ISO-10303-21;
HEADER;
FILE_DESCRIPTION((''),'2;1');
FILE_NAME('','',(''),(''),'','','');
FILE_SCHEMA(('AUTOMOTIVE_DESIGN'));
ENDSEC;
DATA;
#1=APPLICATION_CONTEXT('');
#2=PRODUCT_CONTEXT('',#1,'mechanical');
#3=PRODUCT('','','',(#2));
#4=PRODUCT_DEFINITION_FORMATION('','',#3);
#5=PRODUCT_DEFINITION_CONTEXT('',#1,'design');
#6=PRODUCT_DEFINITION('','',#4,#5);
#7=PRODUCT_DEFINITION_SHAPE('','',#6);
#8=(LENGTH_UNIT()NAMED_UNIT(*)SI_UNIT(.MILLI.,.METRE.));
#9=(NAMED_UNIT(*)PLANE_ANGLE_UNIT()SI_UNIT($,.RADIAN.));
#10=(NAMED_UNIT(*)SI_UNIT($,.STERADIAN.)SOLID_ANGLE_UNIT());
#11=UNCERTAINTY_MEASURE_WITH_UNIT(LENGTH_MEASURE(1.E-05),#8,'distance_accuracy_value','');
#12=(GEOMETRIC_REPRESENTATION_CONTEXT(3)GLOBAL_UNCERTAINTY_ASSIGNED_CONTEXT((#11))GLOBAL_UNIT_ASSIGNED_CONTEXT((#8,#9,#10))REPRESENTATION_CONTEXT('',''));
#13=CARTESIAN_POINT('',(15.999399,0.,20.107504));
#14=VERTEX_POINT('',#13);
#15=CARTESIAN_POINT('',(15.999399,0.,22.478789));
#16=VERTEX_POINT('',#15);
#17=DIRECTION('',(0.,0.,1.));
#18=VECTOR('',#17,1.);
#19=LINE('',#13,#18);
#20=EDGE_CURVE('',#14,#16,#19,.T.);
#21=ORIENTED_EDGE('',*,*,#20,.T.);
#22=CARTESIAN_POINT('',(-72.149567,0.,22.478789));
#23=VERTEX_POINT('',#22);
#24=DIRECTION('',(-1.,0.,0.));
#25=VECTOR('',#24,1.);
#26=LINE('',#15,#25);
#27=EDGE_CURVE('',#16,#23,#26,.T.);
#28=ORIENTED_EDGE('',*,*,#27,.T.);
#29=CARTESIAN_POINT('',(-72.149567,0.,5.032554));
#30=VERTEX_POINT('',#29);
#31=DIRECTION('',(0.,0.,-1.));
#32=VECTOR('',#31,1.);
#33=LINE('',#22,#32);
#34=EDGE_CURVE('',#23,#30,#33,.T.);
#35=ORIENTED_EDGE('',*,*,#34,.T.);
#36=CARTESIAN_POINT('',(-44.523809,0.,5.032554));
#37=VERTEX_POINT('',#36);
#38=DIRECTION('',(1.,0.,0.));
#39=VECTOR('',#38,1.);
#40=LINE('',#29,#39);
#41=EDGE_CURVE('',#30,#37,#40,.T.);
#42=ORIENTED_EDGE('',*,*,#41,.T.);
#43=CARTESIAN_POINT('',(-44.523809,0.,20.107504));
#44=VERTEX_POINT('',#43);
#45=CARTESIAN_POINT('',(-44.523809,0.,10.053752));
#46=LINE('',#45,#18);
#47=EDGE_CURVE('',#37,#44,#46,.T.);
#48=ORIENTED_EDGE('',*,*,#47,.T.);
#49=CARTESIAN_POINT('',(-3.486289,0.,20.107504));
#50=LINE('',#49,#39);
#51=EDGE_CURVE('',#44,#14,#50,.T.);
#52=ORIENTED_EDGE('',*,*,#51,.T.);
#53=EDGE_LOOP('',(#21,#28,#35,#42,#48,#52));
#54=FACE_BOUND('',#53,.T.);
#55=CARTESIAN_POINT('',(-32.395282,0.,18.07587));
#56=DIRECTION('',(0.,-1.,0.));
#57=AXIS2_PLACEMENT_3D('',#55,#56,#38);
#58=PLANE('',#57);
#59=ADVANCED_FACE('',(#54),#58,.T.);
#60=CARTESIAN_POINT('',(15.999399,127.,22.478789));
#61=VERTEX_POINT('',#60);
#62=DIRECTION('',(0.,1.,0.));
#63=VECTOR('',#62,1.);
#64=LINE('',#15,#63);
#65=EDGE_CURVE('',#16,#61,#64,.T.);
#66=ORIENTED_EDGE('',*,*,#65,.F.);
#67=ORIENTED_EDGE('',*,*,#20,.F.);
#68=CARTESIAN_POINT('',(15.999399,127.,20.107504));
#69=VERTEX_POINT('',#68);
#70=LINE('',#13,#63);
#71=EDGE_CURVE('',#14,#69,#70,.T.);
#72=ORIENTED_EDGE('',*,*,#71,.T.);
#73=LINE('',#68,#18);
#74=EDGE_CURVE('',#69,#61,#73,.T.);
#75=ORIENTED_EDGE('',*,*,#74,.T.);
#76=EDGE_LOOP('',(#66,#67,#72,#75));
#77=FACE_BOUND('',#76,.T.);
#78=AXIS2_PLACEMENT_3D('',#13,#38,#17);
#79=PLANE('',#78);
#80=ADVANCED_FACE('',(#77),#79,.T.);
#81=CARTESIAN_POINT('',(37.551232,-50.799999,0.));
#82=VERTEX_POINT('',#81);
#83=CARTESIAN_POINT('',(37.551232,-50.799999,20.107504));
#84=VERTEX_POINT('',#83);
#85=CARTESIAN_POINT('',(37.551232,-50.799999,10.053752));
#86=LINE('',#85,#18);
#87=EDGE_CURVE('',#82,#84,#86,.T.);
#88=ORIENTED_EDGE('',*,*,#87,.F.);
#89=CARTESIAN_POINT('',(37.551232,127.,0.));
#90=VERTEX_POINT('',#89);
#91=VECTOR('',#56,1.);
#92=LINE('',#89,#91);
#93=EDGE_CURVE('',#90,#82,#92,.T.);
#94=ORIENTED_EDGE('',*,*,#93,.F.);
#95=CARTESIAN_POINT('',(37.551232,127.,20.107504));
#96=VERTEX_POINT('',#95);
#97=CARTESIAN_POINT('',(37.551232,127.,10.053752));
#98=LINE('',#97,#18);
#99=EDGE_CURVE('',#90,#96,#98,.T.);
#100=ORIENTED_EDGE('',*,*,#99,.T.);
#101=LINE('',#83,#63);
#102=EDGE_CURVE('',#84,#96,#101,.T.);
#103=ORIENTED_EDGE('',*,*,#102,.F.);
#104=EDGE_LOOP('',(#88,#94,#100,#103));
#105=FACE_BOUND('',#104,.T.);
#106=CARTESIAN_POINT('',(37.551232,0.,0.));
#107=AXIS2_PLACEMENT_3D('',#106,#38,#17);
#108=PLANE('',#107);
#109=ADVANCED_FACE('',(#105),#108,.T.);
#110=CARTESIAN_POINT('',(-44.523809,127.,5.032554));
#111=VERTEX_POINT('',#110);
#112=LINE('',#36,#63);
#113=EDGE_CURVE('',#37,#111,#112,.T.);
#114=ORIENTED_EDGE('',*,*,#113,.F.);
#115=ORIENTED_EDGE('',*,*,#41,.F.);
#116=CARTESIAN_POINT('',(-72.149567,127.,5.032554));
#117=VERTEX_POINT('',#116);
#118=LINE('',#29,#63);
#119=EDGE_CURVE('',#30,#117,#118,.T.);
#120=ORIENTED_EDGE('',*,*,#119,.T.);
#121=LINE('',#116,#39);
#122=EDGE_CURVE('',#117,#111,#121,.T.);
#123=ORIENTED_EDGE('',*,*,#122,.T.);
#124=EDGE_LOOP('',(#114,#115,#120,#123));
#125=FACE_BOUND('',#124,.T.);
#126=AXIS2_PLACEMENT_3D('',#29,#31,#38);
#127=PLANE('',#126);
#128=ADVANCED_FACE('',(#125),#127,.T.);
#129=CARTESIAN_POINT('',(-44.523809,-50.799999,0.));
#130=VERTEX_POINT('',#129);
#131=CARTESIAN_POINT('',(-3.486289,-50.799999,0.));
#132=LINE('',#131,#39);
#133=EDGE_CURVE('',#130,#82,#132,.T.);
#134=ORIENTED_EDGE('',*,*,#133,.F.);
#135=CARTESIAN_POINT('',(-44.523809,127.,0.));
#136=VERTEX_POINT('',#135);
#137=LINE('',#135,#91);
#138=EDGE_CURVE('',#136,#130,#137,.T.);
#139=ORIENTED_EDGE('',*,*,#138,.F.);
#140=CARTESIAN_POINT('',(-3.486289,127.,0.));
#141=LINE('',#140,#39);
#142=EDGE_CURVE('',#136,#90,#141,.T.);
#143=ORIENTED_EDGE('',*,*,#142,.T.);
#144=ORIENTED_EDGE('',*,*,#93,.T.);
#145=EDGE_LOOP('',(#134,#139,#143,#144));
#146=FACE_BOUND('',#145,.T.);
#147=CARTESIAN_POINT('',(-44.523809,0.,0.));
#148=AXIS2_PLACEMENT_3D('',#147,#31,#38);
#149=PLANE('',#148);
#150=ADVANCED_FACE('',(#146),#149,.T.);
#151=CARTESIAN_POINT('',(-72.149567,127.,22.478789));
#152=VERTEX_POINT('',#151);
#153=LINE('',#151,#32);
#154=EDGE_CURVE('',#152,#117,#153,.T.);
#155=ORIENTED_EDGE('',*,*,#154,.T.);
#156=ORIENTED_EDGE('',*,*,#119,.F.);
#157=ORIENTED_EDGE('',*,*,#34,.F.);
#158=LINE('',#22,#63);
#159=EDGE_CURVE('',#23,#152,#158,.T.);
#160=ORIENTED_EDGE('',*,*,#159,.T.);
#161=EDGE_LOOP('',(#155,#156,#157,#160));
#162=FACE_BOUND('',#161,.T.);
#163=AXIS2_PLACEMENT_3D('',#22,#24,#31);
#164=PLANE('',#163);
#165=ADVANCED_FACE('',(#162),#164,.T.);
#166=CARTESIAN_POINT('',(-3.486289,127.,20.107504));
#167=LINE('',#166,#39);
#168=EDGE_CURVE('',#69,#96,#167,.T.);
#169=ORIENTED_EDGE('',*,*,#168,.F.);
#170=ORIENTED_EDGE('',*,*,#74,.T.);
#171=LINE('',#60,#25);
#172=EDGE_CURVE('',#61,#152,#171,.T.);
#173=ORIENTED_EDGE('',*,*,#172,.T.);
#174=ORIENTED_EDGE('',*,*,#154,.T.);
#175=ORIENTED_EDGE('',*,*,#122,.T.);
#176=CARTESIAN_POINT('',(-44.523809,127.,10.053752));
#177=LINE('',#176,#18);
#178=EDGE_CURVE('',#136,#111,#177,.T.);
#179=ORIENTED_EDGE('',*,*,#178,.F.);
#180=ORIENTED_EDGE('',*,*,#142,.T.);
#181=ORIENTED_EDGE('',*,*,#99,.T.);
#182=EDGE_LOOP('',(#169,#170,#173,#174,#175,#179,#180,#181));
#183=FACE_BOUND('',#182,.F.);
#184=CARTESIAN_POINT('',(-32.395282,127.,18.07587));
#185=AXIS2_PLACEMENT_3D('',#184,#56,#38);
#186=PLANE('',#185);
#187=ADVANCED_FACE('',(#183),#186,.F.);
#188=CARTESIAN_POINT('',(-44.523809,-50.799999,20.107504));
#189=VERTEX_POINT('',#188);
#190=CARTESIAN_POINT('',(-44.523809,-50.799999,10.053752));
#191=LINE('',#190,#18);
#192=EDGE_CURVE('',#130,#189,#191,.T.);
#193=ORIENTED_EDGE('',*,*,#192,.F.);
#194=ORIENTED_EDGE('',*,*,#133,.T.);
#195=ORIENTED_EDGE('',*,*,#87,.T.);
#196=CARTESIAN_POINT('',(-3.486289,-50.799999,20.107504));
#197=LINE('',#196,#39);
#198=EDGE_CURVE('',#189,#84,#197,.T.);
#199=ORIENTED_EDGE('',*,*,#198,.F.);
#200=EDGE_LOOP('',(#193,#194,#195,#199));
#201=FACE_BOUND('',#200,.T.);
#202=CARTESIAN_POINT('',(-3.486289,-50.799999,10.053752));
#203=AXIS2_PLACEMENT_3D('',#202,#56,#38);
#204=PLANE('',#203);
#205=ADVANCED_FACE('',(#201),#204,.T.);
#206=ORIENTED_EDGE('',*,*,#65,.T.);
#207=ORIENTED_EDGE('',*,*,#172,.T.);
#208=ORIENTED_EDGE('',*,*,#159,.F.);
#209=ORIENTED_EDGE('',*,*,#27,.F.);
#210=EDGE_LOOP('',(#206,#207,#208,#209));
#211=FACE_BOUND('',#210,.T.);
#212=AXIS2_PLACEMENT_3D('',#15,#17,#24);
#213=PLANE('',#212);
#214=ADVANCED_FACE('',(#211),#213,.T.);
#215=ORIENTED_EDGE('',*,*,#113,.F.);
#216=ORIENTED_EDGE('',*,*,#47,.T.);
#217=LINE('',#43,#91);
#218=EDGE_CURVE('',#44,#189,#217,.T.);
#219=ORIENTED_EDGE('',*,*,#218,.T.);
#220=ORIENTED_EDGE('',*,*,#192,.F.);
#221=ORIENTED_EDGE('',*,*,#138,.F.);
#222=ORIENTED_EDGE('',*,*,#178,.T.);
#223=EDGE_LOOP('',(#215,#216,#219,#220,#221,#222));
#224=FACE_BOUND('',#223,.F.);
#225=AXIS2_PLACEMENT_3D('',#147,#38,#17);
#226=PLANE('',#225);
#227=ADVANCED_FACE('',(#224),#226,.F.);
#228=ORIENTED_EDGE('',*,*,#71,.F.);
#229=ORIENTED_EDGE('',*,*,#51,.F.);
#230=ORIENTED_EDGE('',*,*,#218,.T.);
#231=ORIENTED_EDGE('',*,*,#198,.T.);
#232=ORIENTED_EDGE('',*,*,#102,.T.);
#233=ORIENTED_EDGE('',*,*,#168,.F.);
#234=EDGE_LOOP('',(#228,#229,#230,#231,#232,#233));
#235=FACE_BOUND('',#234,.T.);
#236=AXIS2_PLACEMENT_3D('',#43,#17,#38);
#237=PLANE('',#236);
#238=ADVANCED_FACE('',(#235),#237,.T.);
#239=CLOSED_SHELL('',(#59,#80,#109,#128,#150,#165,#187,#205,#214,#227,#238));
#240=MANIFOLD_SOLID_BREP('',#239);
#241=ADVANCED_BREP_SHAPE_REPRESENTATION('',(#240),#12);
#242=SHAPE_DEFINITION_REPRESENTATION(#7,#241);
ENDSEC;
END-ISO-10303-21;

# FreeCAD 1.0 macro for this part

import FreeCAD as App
import Part
import Sketcher
from FreeCAD import Vector
Q = App.Units.Quantity

doc = App.newDocument("Part")
body = doc.addObject("PartDesign::Body", "Body")

# Sketch on XZ plane
sketch1 = body.newObject("Sketcher::SketchObject", "Sketch")
sketch1.AttachmentSupport = (doc.getObject("XZ_Plane"), [""])
sketch1.MapMode = "FlatFace"
sketch1.addGeometry(Part.LineSegment(Vector(-45, 20, 0), Vector(-45, 0, 0)), False)
sketch1.addGeometry(Part.LineSegment(Vector(-45, 0, 0), Vector(38, 0, 0)), False)
sketch1.addGeometry(Part.LineSegment(Vector(38, 0, 0), Vector(38, 20, 0)), False)
sketch1.addGeometry(Part.LineSegment(Vector(38, 20, 0), Vector(-45, 20, 0)), False)
sketch1.addConstraint(Sketcher.Constraint("Coincident", 0, 2, 1, 1))
sketch1.addConstraint(Sketcher.Constraint("Coincident", 1, 2, 2, 1))
sketch1.addConstraint(Sketcher.Constraint("Coincident", 2, 2, 3, 1))
sketch1.addConstraint(Sketcher.Constraint("Coincident", 3, 2, 0, 1))
sketch1.addConstraint(Sketcher.Constraint("Vertical", 0))
sketch1.addConstraint(Sketcher.Constraint("Horizontal", 1))
sketch1.addConstraint(Sketcher.Constraint("Vertical", 2))
sketch1.addConstraint(Sketcher.Constraint("Horizontal", 3))
sketch1.addConstraint(Sketcher.Constraint("PointOnObject", 0, 2, -1))
sketch1.addConstraint(Sketcher.Constraint("DistanceX", 1, 1, 1, 2, Q("82.075041 mm")))
sketch1.addConstraint(Sketcher.Constraint("DistanceY", 0, 2, 0, 1, Q("20.107504 mm")))
sketch1.addConstraint(Sketcher.Constraint("DistanceX", 0, 2, -1, 1, Q("44.523809 mm")))
pad1 = body.newObject("PartDesign::Pad", "Pad")
pad1.Profile = sketch1
pad1.Length = Q("2 in")

# Sketch on XZ plane
sketch2 = body.newObject("Sketcher::SketchObject", "Sketch001")
sketch2.AttachmentSupport = (doc.getObject("XZ_Plane"), [""])
sketch2.MapMode = "FlatFace"
sketch2.addGeometry(Part.LineSegment(Vector(-72.1, 5, 0), Vector(-44.5, 5, 0)), False)
sketch2.addGeometry(Part.LineSegment(Vector(-44.5, 5, 0), Vector(-44.5, 0, 0)), False)
sketch2.addGeometry(Part.LineSegment(Vector(-44.5, 0, 0), Vector(37.6, 0, 0)), False)
sketch2.addGeometry(Part.LineSegment(Vector(37.6, 0, 0), Vector(37.6, 20.1, 0)), False)
sketch2.addGeometry(Part.LineSegment(Vector(37.6, 20.1, 0), Vector(16, 20.1, 0)), False)
sketch2.addGeometry(Part.LineSegment(Vector(16, 20.1, 0), Vector(16, 22.5, 0)), False)
sketch2.addGeometry(Part.LineSegment(Vector(16, 22.5, 0), Vector(-72.1, 22.5, 0)), False)
sketch2.addGeometry(Part.LineSegment(Vector(-72.1, 22.5, 0), Vector(-72.1, 5, 0)), False)
sketch2.addConstraint(Sketcher.Constraint("Coincident", 0, 2, 1, 1))
sketch2.addConstraint(Sketcher.Constraint("Coincident", 1, 2, 2, 1))
sketch2.addConstraint(Sketcher.Constraint("Coincident", 2, 2, 3, 1))
sketch2.addConstraint(Sketcher.Constraint("Coincident", 3, 2, 4, 1))
sketch2.addConstraint(Sketcher.Constraint("Coincident", 4, 2, 5, 1))
sketch2.addConstraint(Sketcher.Constraint("Coincident", 5, 2, 6, 1))
sketch2.addConstraint(Sketcher.Constraint("Coincident", 6, 2, 7, 1))
sketch2.addConstraint(Sketcher.Constraint("Coincident", 7, 2, 0, 1))
sketch2.addConstraint(Sketcher.Constraint("Horizontal", 0))
sketch2.addConstraint(Sketcher.Constraint("Vertical", 1))
sketch2.addConstraint(Sketcher.Constraint("Horizontal", 2))
sketch2.addConstraint(Sketcher.Constraint("Vertical", 3))
sketch2.addConstraint(Sketcher.Constraint("Horizontal", 4))
sketch2.addConstraint(Sketcher.Constraint("Vertical", 5))
sketch2.addConstraint(Sketcher.Constraint("Horizontal", 6))
sketch2.addConstraint(Sketcher.Constraint("Vertical", 7))
sketch2.addConstraint(Sketcher.Constraint("PointOnObject", 1, 2, -1))
sketch2.addConstraint(Sketcher.Constraint("DistanceX", 0, 1, 0, 2, Q("27.625758 mm")))
sketch2.addConstraint(Sketcher.Constraint("DistanceX", 2, 1, 2, 2, Q("82.075041 mm")))
sketch2.addConstraint(Sketcher.Constraint("DistanceX", -1, 1, 4, 2, Q("15.999399 mm")))
sketch2.addConstraint(Sketcher.Constraint("DistanceX", 4, 2, 4, 1, Q("21.551833 mm")))
sketch2.addConstraint(Sketcher.Constraint("DistanceY", 1, 2, 1, 1, Q("5.032554 mm")))
sketch2.addConstraint(Sketcher.Constraint("DistanceY", 3, 1, 3, 2, Q("20.107504 mm")))
sketch2.addConstraint(Sketcher.Constraint("DistanceY", 5, 1, 5, 2, Q("2.371285 mm")))
pad2 = body.newObject("PartDesign::Pad", "Pad001")
pad2.Profile = sketch2
pad2.Length = Q("5 in")
pad2.Reversed = True

doc.recompute()
